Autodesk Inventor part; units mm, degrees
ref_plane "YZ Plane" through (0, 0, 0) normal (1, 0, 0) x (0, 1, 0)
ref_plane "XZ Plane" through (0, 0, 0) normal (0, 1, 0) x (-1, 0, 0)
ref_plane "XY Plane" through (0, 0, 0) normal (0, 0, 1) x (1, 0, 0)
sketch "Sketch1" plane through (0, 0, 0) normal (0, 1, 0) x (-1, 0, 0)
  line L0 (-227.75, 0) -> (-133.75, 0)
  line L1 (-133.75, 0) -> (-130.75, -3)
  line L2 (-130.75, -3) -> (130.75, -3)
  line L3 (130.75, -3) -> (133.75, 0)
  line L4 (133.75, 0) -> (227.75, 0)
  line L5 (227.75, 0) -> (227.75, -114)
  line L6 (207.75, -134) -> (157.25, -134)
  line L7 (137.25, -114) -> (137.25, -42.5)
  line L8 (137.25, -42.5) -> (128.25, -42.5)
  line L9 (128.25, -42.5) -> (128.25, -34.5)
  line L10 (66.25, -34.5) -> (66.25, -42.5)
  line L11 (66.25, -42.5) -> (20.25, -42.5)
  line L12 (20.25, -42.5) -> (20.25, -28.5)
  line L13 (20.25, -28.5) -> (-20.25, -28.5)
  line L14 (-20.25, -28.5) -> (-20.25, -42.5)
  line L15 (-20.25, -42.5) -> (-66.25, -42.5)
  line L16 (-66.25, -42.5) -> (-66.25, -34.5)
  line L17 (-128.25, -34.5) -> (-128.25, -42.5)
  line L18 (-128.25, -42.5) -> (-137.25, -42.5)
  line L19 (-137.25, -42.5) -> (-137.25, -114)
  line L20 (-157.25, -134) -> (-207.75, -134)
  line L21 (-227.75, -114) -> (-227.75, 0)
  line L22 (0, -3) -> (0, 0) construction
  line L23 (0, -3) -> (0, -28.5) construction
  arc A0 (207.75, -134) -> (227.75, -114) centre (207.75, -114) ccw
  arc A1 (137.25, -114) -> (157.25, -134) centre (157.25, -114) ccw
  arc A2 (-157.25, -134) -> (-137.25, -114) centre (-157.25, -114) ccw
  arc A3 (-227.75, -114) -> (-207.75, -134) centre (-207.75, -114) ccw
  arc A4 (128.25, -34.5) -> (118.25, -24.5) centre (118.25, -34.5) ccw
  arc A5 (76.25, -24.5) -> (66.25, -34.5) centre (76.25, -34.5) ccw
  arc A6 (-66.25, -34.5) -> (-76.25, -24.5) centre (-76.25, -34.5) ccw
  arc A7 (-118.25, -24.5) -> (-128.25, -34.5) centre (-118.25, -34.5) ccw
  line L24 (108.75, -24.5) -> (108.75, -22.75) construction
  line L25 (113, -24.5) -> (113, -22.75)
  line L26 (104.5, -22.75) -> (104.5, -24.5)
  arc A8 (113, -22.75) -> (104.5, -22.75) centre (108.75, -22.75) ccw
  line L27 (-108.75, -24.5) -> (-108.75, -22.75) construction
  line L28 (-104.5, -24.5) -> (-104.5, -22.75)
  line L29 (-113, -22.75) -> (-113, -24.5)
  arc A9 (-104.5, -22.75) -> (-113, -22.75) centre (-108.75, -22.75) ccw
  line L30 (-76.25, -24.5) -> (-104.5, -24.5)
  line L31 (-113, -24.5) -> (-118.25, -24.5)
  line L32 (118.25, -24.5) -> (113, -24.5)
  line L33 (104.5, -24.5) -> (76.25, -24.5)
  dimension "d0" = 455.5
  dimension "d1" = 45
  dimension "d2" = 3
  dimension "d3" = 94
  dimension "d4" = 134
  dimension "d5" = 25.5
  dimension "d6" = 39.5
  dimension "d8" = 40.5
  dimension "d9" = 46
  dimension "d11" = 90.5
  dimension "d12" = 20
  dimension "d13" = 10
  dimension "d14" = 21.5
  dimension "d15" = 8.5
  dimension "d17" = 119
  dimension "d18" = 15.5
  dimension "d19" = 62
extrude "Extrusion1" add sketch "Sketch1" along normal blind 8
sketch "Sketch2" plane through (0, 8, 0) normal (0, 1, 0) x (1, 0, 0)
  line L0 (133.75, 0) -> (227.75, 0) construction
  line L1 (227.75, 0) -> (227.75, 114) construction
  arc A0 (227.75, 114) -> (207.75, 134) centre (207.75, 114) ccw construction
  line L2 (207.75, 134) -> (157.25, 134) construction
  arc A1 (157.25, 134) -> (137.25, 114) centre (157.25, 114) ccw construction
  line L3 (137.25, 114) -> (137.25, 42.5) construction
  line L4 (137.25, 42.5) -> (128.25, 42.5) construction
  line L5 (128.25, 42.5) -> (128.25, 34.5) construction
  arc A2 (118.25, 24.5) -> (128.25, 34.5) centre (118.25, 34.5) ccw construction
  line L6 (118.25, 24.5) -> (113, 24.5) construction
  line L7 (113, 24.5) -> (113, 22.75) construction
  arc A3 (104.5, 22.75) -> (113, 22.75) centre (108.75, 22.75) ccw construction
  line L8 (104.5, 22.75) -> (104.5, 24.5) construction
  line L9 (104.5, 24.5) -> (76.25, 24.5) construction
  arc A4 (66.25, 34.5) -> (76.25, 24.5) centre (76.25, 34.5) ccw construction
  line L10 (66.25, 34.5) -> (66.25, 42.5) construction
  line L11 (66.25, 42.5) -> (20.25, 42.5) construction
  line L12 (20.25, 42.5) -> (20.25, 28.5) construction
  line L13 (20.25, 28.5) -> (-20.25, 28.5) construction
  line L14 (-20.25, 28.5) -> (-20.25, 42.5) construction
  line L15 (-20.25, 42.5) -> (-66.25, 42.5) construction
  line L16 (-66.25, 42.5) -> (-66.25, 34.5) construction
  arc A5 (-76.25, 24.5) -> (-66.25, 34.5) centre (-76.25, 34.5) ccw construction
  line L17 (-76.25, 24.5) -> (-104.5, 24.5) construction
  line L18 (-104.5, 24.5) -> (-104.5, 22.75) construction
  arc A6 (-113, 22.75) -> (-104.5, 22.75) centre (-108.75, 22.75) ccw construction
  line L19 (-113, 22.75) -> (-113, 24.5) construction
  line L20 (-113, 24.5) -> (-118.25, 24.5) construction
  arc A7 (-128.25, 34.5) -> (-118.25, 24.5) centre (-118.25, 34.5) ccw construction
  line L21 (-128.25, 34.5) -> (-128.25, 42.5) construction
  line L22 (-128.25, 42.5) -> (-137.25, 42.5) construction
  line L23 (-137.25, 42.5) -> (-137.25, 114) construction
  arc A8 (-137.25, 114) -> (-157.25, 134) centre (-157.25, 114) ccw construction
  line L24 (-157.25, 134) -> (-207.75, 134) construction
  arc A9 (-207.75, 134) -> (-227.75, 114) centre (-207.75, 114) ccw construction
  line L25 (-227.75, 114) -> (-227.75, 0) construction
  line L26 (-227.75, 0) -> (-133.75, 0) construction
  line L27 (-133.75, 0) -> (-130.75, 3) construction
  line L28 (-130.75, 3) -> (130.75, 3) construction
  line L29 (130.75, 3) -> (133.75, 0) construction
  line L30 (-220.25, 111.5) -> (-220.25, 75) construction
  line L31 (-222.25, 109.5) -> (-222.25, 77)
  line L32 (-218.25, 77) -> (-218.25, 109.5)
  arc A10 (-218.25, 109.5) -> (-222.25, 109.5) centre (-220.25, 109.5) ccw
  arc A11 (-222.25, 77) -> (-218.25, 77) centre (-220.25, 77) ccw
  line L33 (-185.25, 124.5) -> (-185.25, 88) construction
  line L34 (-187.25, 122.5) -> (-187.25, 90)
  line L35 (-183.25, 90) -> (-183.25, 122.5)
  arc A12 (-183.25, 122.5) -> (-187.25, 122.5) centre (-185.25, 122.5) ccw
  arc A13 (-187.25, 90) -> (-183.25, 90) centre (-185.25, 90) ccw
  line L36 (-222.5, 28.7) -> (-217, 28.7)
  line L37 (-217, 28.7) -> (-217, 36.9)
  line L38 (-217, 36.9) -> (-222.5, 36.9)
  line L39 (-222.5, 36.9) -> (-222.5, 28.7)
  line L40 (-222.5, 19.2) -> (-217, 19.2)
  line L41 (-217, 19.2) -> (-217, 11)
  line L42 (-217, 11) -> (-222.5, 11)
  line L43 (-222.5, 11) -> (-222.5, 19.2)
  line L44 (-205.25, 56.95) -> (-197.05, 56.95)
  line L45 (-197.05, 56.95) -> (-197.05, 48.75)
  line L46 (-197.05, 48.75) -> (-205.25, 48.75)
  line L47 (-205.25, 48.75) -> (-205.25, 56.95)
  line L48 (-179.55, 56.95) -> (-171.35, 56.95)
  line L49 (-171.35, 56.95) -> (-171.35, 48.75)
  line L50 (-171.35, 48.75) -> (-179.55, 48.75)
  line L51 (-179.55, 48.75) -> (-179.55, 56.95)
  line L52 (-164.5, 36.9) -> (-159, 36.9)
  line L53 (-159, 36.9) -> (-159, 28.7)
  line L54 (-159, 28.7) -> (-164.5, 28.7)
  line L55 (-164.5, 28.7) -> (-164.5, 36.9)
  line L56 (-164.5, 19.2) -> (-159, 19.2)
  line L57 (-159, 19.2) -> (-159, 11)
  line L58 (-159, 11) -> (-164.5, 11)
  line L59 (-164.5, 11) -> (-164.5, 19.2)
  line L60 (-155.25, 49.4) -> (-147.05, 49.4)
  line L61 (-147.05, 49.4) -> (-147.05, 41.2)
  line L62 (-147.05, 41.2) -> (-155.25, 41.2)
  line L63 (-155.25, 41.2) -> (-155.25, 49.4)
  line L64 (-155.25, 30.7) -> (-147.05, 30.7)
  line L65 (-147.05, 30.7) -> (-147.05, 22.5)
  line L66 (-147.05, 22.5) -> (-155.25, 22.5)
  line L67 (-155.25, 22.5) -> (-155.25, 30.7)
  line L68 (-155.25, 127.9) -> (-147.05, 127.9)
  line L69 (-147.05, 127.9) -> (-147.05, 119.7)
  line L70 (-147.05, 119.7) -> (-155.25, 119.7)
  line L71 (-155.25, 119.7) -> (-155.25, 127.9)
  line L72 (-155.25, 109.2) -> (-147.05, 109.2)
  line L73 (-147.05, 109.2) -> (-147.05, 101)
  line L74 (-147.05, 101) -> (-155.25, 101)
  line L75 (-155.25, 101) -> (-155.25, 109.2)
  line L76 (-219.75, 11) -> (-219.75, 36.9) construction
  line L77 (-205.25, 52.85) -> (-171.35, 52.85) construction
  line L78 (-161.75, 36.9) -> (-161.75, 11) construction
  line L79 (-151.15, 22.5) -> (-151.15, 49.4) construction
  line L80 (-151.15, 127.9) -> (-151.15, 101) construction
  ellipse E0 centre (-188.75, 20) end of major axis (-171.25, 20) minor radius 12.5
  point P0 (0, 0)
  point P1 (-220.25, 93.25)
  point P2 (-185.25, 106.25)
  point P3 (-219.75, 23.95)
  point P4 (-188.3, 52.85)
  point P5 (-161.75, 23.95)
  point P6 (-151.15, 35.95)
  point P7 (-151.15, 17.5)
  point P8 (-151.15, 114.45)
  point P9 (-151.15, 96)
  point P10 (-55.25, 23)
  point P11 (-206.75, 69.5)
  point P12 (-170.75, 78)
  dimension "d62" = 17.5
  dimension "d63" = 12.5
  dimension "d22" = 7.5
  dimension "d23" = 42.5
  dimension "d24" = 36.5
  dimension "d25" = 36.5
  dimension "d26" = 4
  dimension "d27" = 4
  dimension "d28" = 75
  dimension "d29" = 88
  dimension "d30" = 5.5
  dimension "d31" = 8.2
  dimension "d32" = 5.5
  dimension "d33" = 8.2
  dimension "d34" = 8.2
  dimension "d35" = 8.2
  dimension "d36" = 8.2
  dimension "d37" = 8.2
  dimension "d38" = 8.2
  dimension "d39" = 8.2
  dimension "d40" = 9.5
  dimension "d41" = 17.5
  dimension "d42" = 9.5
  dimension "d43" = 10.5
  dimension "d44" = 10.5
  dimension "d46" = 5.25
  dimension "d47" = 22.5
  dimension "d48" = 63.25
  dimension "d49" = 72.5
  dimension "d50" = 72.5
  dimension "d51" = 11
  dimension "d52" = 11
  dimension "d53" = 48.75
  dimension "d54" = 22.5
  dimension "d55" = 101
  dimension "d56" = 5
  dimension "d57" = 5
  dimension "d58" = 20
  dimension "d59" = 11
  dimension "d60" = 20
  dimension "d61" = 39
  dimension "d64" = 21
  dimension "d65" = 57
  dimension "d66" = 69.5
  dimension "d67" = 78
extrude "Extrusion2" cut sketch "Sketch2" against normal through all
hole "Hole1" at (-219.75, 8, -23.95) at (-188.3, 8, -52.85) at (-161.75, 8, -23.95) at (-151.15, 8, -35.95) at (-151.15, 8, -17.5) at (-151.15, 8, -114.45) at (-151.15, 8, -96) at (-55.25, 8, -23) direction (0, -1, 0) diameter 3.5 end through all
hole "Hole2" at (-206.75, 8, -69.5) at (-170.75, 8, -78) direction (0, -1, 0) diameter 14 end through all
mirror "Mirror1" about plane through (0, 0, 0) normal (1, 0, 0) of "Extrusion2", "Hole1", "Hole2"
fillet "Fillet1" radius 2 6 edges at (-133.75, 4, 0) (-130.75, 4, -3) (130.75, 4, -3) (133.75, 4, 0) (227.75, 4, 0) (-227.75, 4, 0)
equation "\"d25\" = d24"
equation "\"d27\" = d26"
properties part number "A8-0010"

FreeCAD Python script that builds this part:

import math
import FreeCAD as App
import Part
import Sketcher
from FreeCAD import Vector


def edges_at(feature, points):
    """Names of the edges that pass closest to the given points."""
    edges = feature.Shape.Edges
    near = lambda p: min(range(len(edges)), key=lambda i: edges[i].distToShape(Part.Vertex(*p))[0])
    return sorted({f"Edge{near(p) + 1}" for p in points})

doc = App.newDocument("Part")
body = doc.addObject("PartDesign::Body", "Body")

# Sketch on XZ plane
sketch1 = doc.addObject("Sketcher::SketchObject", "Sketch")
body.addObject(sketch1)
sketch1.AttachmentSupport = (doc.XZ_Plane, [""])
sketch1.MapMode = "FlatFace"
sketch1.addGeometry([
    Part.LineSegment(Vector(133.8, 0, 0), Vector(227.8, 0, 0)),  # 0
    Part.LineSegment(Vector(227.8, 0, 0), Vector(227.8, -114, 0)),  # 1
    Part.ArcOfCircle(Part.Circle(Vector(207.8, -114, 0), Vector(0, 0, 1), 20), math.radians(-90), math.radians(0)),  # 2
    Part.LineSegment(Vector(207.8, -134, 0), Vector(157.2, -134, 0)),  # 3
    Part.ArcOfCircle(Part.Circle(Vector(157.2, -114, 0), Vector(0, 0, 1), 20), math.radians(180), math.radians(270)),  # 4
    Part.LineSegment(Vector(137.2, -114, 0), Vector(137.2, -42.5, 0)),  # 5
    Part.LineSegment(Vector(137.2, -42.5, 0), Vector(128.2, -42.5, 0)),  # 6
    Part.LineSegment(Vector(128.2, -42.5, 0), Vector(128.2, -34.5, 0)),  # 7
    Part.ArcOfCircle(Part.Circle(Vector(118.2, -34.5, 0), Vector(0, 0, 1), 10), math.radians(0), math.radians(90)),  # 8
    Part.LineSegment(Vector(118.2, -24.5, 0), Vector(113, -24.5, 0)),  # 9
    Part.LineSegment(Vector(113, -24.5, 0), Vector(113, -22.8, 0)),  # 10
    Part.ArcOfCircle(Part.Circle(Vector(108.8, -22.8, 0), Vector(0, 0, 1), 4.2), math.radians(0), math.radians(180)),  # 11
    Part.LineSegment(Vector(104.5, -22.8, 0), Vector(104.5, -24.5, 0)),  # 12
    Part.LineSegment(Vector(104.5, -24.5, 0), Vector(76.2, -24.5, 0)),  # 13
    Part.ArcOfCircle(Part.Circle(Vector(76.2, -34.5, 0), Vector(0, 0, 1), 10), math.radians(90), math.radians(180)),  # 14
    Part.LineSegment(Vector(66.2, -34.5, 0), Vector(66.2, -42.5, 0)),  # 15
    Part.LineSegment(Vector(66.2, -42.5, 0), Vector(20.2, -42.5, 0)),  # 16
    Part.LineSegment(Vector(20.2, -42.5, 0), Vector(20.2, -28.5, 0)),  # 17
    Part.LineSegment(Vector(20.2, -28.5, 0), Vector(-20.2, -28.5, 0)),  # 18
    Part.LineSegment(Vector(-20.2, -28.5, 0), Vector(-20.2, -42.5, 0)),  # 19
    Part.LineSegment(Vector(-20.2, -42.5, 0), Vector(-66.2, -42.5, 0)),  # 20
    Part.LineSegment(Vector(-66.2, -42.5, 0), Vector(-66.2, -34.5, 0)),  # 21
    Part.ArcOfCircle(Part.Circle(Vector(-76.2, -34.5, 0), Vector(0, 0, 1), 10), math.radians(0), math.radians(90)),  # 22
    Part.LineSegment(Vector(-76.2, -24.5, 0), Vector(-104.5, -24.5, 0)),  # 23
    Part.LineSegment(Vector(-104.5, -24.5, 0), Vector(-104.5, -22.8, 0)),  # 24
    Part.ArcOfCircle(Part.Circle(Vector(-108.8, -22.8, 0), Vector(0, 0, 1), 4.2), math.radians(0), math.radians(180)),  # 25
    Part.LineSegment(Vector(-113, -22.8, 0), Vector(-113, -24.5, 0)),  # 26
    Part.LineSegment(Vector(-113, -24.5, 0), Vector(-118.2, -24.5, 0)),  # 27
    Part.ArcOfCircle(Part.Circle(Vector(-118.2, -34.5, 0), Vector(0, 0, 1), 10), math.radians(90), math.radians(180)),  # 28
    Part.LineSegment(Vector(-128.2, -34.5, 0), Vector(-128.2, -42.5, 0)),  # 29
    Part.LineSegment(Vector(-128.2, -42.5, 0), Vector(-137.2, -42.5, 0)),  # 30
    Part.LineSegment(Vector(-137.2, -42.5, 0), Vector(-137.2, -114, 0)),  # 31
    Part.ArcOfCircle(Part.Circle(Vector(-157.2, -114, 0), Vector(0, 0, 1), 20), math.radians(-90), math.radians(0)),  # 32
    Part.LineSegment(Vector(-157.2, -134, 0), Vector(-207.8, -134, 0)),  # 33
    Part.ArcOfCircle(Part.Circle(Vector(-207.8, -114, 0), Vector(0, 0, 1), 20), math.radians(180), math.radians(270)),  # 34
    Part.LineSegment(Vector(-227.8, -114, 0), Vector(-227.8, 0, 0)),  # 35
    Part.LineSegment(Vector(-227.8, 0, 0), Vector(-133.8, 0, 0)),  # 36
    Part.LineSegment(Vector(-133.8, 0, 0), Vector(-130.8, -3, 0)),  # 37
    Part.LineSegment(Vector(-130.8, -3, 0), Vector(130.8, -3, 0)),  # 38
    Part.LineSegment(Vector(130.8, -3, 0), Vector(133.8, 0, 0)),  # 39
], False)
sketch1.addConstraint([
    Sketcher.Constraint("Coincident", 0, 2, 1, 1),
    Sketcher.Constraint("Tangent", 1, 2, 2, 2),
    Sketcher.Constraint("Tangent", 2, 1, 3, 1),
    Sketcher.Constraint("Tangent", 3, 2, 4, 2),
    Sketcher.Constraint("Tangent", 4, 1, 5, 1),
    Sketcher.Constraint("Coincident", 5, 2, 6, 1),
    Sketcher.Constraint("Coincident", 6, 2, 7, 1),
    Sketcher.Constraint("Tangent", 7, 2, 8, 1),
    Sketcher.Constraint("Tangent", 8, 2, 9, 1),
    Sketcher.Constraint("Coincident", 9, 2, 10, 1),
    Sketcher.Constraint("Tangent", 10, 2, 11, 1),
    Sketcher.Constraint("Tangent", 11, 2, 12, 1),
    Sketcher.Constraint("Coincident", 12, 2, 13, 1),
    Sketcher.Constraint("Tangent", 13, 2, 14, 1),
    Sketcher.Constraint("Tangent", 14, 2, 15, 1),
    Sketcher.Constraint("Coincident", 15, 2, 16, 1),
    Sketcher.Constraint("Coincident", 16, 2, 17, 1),
    Sketcher.Constraint("Coincident", 17, 2, 18, 1),
    Sketcher.Constraint("Coincident", 18, 2, 19, 1),
    Sketcher.Constraint("Coincident", 19, 2, 20, 1),
    Sketcher.Constraint("Coincident", 20, 2, 21, 1),
    Sketcher.Constraint("Tangent", 21, 2, 22, 1),
    Sketcher.Constraint("Tangent", 22, 2, 23, 1),
    Sketcher.Constraint("Coincident", 23, 2, 24, 1),
    Sketcher.Constraint("Tangent", 24, 2, 25, 1),
    Sketcher.Constraint("Tangent", 25, 2, 26, 1),
    Sketcher.Constraint("Coincident", 26, 2, 27, 1),
    Sketcher.Constraint("Tangent", 27, 2, 28, 1),
    Sketcher.Constraint("Tangent", 28, 2, 29, 1),
    Sketcher.Constraint("Coincident", 29, 2, 30, 1),
    Sketcher.Constraint("Coincident", 30, 2, 31, 1),
    Sketcher.Constraint("Tangent", 31, 2, 32, 2),
    Sketcher.Constraint("Tangent", 32, 1, 33, 1),
    Sketcher.Constraint("Tangent", 33, 2, 34, 2),
    Sketcher.Constraint("Tangent", 34, 1, 35, 1),
    Sketcher.Constraint("Coincident", 35, 2, 36, 1),
    Sketcher.Constraint("Coincident", 36, 2, 37, 1),
    Sketcher.Constraint("Coincident", 37, 2, 38, 1),
    Sketcher.Constraint("Coincident", 38, 2, 39, 1),
    Sketcher.Constraint("Coincident", 39, 2, 0, 1),
    Sketcher.Constraint("Horizontal", 0),
    Sketcher.Constraint("Vertical", 1),
    Sketcher.Constraint("Horizontal", 3),
    Sketcher.Constraint("Vertical", 5),
    Sketcher.Constraint("Horizontal", 6),
    Sketcher.Constraint("Vertical", 7),
    Sketcher.Constraint("Horizontal", 9),
    Sketcher.Constraint("Vertical", 10),
    Sketcher.Constraint("Vertical", 12),
    Sketcher.Constraint("Horizontal", 13),
    Sketcher.Constraint("Vertical", 15),
    Sketcher.Constraint("Horizontal", 16),
    Sketcher.Constraint("Vertical", 17),
    Sketcher.Constraint("Horizontal", 18),
    Sketcher.Constraint("Vertical", 19),
    Sketcher.Constraint("Horizontal", 20),
    Sketcher.Constraint("Vertical", 21),
    Sketcher.Constraint("Horizontal", 23),
    Sketcher.Constraint("Vertical", 24),
    Sketcher.Constraint("Vertical", 26),
    Sketcher.Constraint("Horizontal", 27),
    Sketcher.Constraint("Vertical", 29),
    Sketcher.Constraint("Horizontal", 30),
    Sketcher.Constraint("Vertical", 31),
    Sketcher.Constraint("Horizontal", 33),
    Sketcher.Constraint("Vertical", 35),
    Sketcher.Constraint("Horizontal", 36),
    Sketcher.Constraint("Horizontal", 38),
    Sketcher.Constraint("Equal", 2, 4),
    Sketcher.Constraint("Equal", 8, 14),
    Sketcher.Constraint("Equal", 14, 22),
    Sketcher.Constraint("Equal", 11, 25),
    Sketcher.Constraint("Equal", 22, 28),
    Sketcher.Constraint("Equal", 4, 32),
    Sketcher.Constraint("Equal", 32, 34),
    Sketcher.Constraint("Symmetric", 0, 2, 35, 2, -1, 1),
    Sketcher.Constraint("Symmetric", 14, 3, 22, 3, -2),
    Sketcher.Constraint("Symmetric", 11, 3, 25, 3, -2),
    Sketcher.Constraint("Symmetric", 8, 3, 28, 3, -2),
    Sketcher.Constraint("Symmetric", 4, 3, 32, 3, -2),
    Sketcher.Constraint("Symmetric", 16, 2, 19, 2, -2),
    Sketcher.Constraint("Symmetric", 36, 2, 39, 2, -2),
    Sketcher.Constraint("Perpendicular", 37, 39),
    Sketcher.Constraint("Horizontal", 8, 3, 14, 3),
    Sketcher.Constraint("Horizontal", 6, 2, 15, 2),
    Sketcher.Constraint("Horizontal", 20, 2, 29, 2),
    Sketcher.Constraint("Equal", 37, 39),
    Sketcher.Constraint("Radius", 2, 20.0),
    Sketcher.Constraint("Radius", 8, 10.0),
    Sketcher.Constraint("DistanceX", 0, 1, 0, 2, 94.0),
    Sketcher.Constraint("DistanceX", 16, 2, 16, 1, 46.0),
    Sketcher.Constraint("Radius", 11, 4.25),
    Sketcher.Constraint("DistanceX", 18, 2, 18, 1, 40.5),
    Sketcher.Constraint("DistanceY", 2, 1, -1, 1, 134.0),
    Sketcher.Constraint("DistanceY", 37, 2, -1, 1, 3.0),
    Sketcher.Constraint("DistanceX", 11, 3, 0, 2, 119.0),
    Sketcher.Constraint("DistanceX", 34, 1, 31, 2, 90.5),
    Sketcher.Constraint("DistanceX", 36, 2, 27, 2, 15.5),
    Sketcher.Constraint("DistanceY", 27, 2, 37, 2, 21.5),
    Sketcher.Constraint("DistanceY", 7, 1, 7, 2, 8.0),
    Sketcher.Constraint("DistanceY", 17, 1, 17, 2, 14.0),
    Sketcher.Constraint("DistanceX", 38, 1, 38, 2, 261.5),
    Sketcher.Constraint("DistanceY", 10, 1, 10, 2, 1.75),
])
pad1 = doc.addObject("PartDesign::Pad", "Pad")
body.addObject(pad1)
pad1.Profile = sketch1
pad1.Length = 8
pad1.Reversed = True

# Sketch on XZ plane
sketch2 = doc.addObject("Sketcher::SketchObject", "Sketch001")
body.addObject(sketch2)
sketch2.AttachmentSupport = (doc.XZ_Plane, [""])
sketch2.MapMode = "FlatFace"
sketch2.AttachmentOffset = App.Placement(Vector(0, 0, -8), App.Rotation())
sketch2.addGeometry([
    Part.ArcOfCircle(Part.Circle(Vector(-220.25, -109.5, 0), Vector(0, 0, 1), 2), math.radians(180), math.radians(360)),  # 0
    Part.LineSegment(Vector(-222.25, -109.5, 0), Vector(-222.25, -77, 0)),  # 1
    Part.ArcOfCircle(Part.Circle(Vector(-220.25, -77, 0), Vector(0, 0, 1), 2), math.radians(0), math.radians(180)),  # 2
    Part.LineSegment(Vector(-218.25, -77, 0), Vector(-218.25, -109.5, 0)),  # 3
    Part.ArcOfCircle(Part.Circle(Vector(-185.25, -122.5, 0), Vector(0, 0, 1), 2), math.radians(180), math.radians(360)),  # 4
    Part.LineSegment(Vector(-187.25, -122.5, 0), Vector(-187.25, -90, 0)),  # 5
    Part.ArcOfCircle(Part.Circle(Vector(-185.25, -90, 0), Vector(0, 0, 1), 2), math.radians(0), math.radians(180)),  # 6
    Part.LineSegment(Vector(-183.25, -90, 0), Vector(-183.25, -122.5, 0)),  # 7
    Part.LineSegment(Vector(-222.5, -36.9, 0), Vector(-222.5, -28.7, 0)),  # 8
    Part.LineSegment(Vector(-222.5, -28.7, 0), Vector(-217, -28.7, 0)),  # 9
    Part.LineSegment(Vector(-217, -28.7, 0), Vector(-217, -36.9, 0)),  # 10
    Part.LineSegment(Vector(-217, -36.9, 0), Vector(-222.5, -36.9, 0)),  # 11
    Part.LineSegment(Vector(-217, -19.2, 0), Vector(-222.5, -19.2, 0)),  # 12
    Part.LineSegment(Vector(-222.5, -19.2, 0), Vector(-222.5, -11, 0)),  # 13
    Part.LineSegment(Vector(-222.5, -11, 0), Vector(-217, -11, 0)),  # 14
    Part.LineSegment(Vector(-217, -11, 0), Vector(-217, -19.2, 0)),  # 15
    Part.LineSegment(Vector(-197.05, -56.95, 0), Vector(-205.25, -56.95, 0)),  # 16
    Part.LineSegment(Vector(-205.25, -56.95, 0), Vector(-205.25, -48.75, 0)),  # 17
    Part.LineSegment(Vector(-205.25, -48.75, 0), Vector(-197.05, -48.75, 0)),  # 18
    Part.LineSegment(Vector(-197.05, -48.75, 0), Vector(-197.05, -56.95, 0)),  # 19
    Part.LineSegment(Vector(-171.35, -56.95, 0), Vector(-179.55, -56.95, 0)),  # 20
    Part.LineSegment(Vector(-179.55, -56.95, 0), Vector(-179.55, -48.75, 0)),  # 21
    Part.LineSegment(Vector(-179.55, -48.75, 0), Vector(-171.35, -48.75, 0)),  # 22
    Part.LineSegment(Vector(-171.35, -48.75, 0), Vector(-171.35, -56.95, 0)),  # 23
    Part.LineSegment(Vector(-159, -36.9, 0), Vector(-164.5, -36.9, 0)),  # 24
    Part.LineSegment(Vector(-164.5, -36.9, 0), Vector(-164.5, -28.7, 0)),  # 25
    Part.LineSegment(Vector(-164.5, -28.7, 0), Vector(-159, -28.7, 0)),  # 26
    Part.LineSegment(Vector(-159, -28.7, 0), Vector(-159, -36.9, 0)),  # 27
    Part.LineSegment(Vector(-159, -19.2, 0), Vector(-164.5, -19.2, 0)),  # 28
    Part.LineSegment(Vector(-164.5, -19.2, 0), Vector(-164.5, -11, 0)),  # 29
    Part.LineSegment(Vector(-164.5, -11, 0), Vector(-159, -11, 0)),  # 30
    Part.LineSegment(Vector(-159, -11, 0), Vector(-159, -19.2, 0)),  # 31
    Part.LineSegment(Vector(-147.05, -49.4, 0), Vector(-155.25, -49.4, 0)),  # 32
    Part.LineSegment(Vector(-155.25, -49.4, 0), Vector(-155.25, -41.2, 0)),  # 33
    Part.LineSegment(Vector(-155.25, -41.2, 0), Vector(-147.05, -41.2, 0)),  # 34
    Part.LineSegment(Vector(-147.05, -41.2, 0), Vector(-147.05, -49.4, 0)),  # 35
    Part.LineSegment(Vector(-147.05, -30.7, 0), Vector(-155.25, -30.7, 0)),  # 36
    Part.LineSegment(Vector(-155.25, -30.7, 0), Vector(-155.25, -22.5, 0)),  # 37
    Part.LineSegment(Vector(-155.25, -22.5, 0), Vector(-147.05, -22.5, 0)),  # 38
    Part.LineSegment(Vector(-147.05, -22.5, 0), Vector(-147.05, -30.7, 0)),  # 39
    Part.LineSegment(Vector(-147.05, -127.9, 0), Vector(-155.25, -127.9, 0)),  # 40
    Part.LineSegment(Vector(-155.25, -127.9, 0), Vector(-155.25, -119.7, 0)),  # 41
    Part.LineSegment(Vector(-155.25, -119.7, 0), Vector(-147.05, -119.7, 0)),  # 42
    Part.LineSegment(Vector(-147.05, -119.7, 0), Vector(-147.05, -127.9, 0)),  # 43
    Part.LineSegment(Vector(-147.05, -109.2, 0), Vector(-155.25, -109.2, 0)),  # 44
    Part.LineSegment(Vector(-155.25, -109.2, 0), Vector(-155.25, -101, 0)),  # 45
    Part.LineSegment(Vector(-155.25, -101, 0), Vector(-147.05, -101, 0)),  # 46
    Part.LineSegment(Vector(-147.05, -101, 0), Vector(-147.05, -109.2, 0)),  # 47
    Part.Ellipse(Vector(-171.25, -20, 0), Vector(-188.75, -7.5, 0), Vector(-188.75, -20, 0)),  # 48
], False)
sketch2.addConstraint([
    Sketcher.Constraint("Block", 48),
    Sketcher.Constraint("Tangent", 0, 1, 1, 1),
    Sketcher.Constraint("Tangent", 1, 2, 2, 2),
    Sketcher.Constraint("Tangent", 2, 1, 3, 1),
    Sketcher.Constraint("Tangent", 3, 2, 0, 2),
    Sketcher.Constraint("Tangent", 4, 1, 5, 1),
    Sketcher.Constraint("Tangent", 5, 2, 6, 2),
    Sketcher.Constraint("Tangent", 6, 1, 7, 1),
    Sketcher.Constraint("Tangent", 7, 2, 4, 2),
    Sketcher.Constraint("Coincident", 8, 2, 9, 1),
    Sketcher.Constraint("Coincident", 9, 2, 10, 1),
    Sketcher.Constraint("Coincident", 10, 2, 11, 1),
    Sketcher.Constraint("Coincident", 11, 2, 8, 1),
    Sketcher.Constraint("Coincident", 12, 2, 13, 1),
    Sketcher.Constraint("Coincident", 13, 2, 14, 1),
    Sketcher.Constraint("Coincident", 14, 2, 15, 1),
    Sketcher.Constraint("Coincident", 15, 2, 12, 1),
    Sketcher.Constraint("Coincident", 16, 2, 17, 1),
    Sketcher.Constraint("Coincident", 17, 2, 18, 1),
    Sketcher.Constraint("Coincident", 18, 2, 19, 1),
    Sketcher.Constraint("Coincident", 19, 2, 16, 1),
    Sketcher.Constraint("Coincident", 20, 2, 21, 1),
    Sketcher.Constraint("Coincident", 21, 2, 22, 1),
    Sketcher.Constraint("Coincident", 22, 2, 23, 1),
    Sketcher.Constraint("Coincident", 23, 2, 20, 1),
    Sketcher.Constraint("Coincident", 24, 2, 25, 1),
    Sketcher.Constraint("Coincident", 25, 2, 26, 1),
    Sketcher.Constraint("Coincident", 26, 2, 27, 1),
    Sketcher.Constraint("Coincident", 27, 2, 24, 1),
    Sketcher.Constraint("Coincident", 28, 2, 29, 1),
    Sketcher.Constraint("Coincident", 29, 2, 30, 1),
    Sketcher.Constraint("Coincident", 30, 2, 31, 1),
    Sketcher.Constraint("Coincident", 31, 2, 28, 1),
    Sketcher.Constraint("Coincident", 32, 2, 33, 1),
    Sketcher.Constraint("Coincident", 33, 2, 34, 1),
    Sketcher.Constraint("Coincident", 34, 2, 35, 1),
    Sketcher.Constraint("Coincident", 35, 2, 32, 1),
    Sketcher.Constraint("Coincident", 36, 2, 37, 1),
    Sketcher.Constraint("Coincident", 37, 2, 38, 1),
    Sketcher.Constraint("Coincident", 38, 2, 39, 1),
    Sketcher.Constraint("Coincident", 39, 2, 36, 1),
    Sketcher.Constraint("Coincident", 40, 2, 41, 1),
    Sketcher.Constraint("Coincident", 41, 2, 42, 1),
    Sketcher.Constraint("Coincident", 42, 2, 43, 1),
    Sketcher.Constraint("Coincident", 43, 2, 40, 1),
    Sketcher.Constraint("Coincident", 44, 2, 45, 1),
    Sketcher.Constraint("Coincident", 45, 2, 46, 1),
    Sketcher.Constraint("Coincident", 46, 2, 47, 1),
    Sketcher.Constraint("Coincident", 47, 2, 44, 1),
    Sketcher.Constraint("Vertical", 1),
    Sketcher.Constraint("Vertical", 3),
    Sketcher.Constraint("Vertical", 5),
    Sketcher.Constraint("Vertical", 7),
    Sketcher.Constraint("Vertical", 8),
    Sketcher.Constraint("Horizontal", 9),
    Sketcher.Constraint("Vertical", 10),
    Sketcher.Constraint("Horizontal", 11),
    Sketcher.Constraint("Horizontal", 12),
    Sketcher.Constraint("Vertical", 13),
    Sketcher.Constraint("Horizontal", 14),
    Sketcher.Constraint("Vertical", 15),
    Sketcher.Constraint("Horizontal", 16),
    Sketcher.Constraint("Vertical", 17),
    Sketcher.Constraint("Horizontal", 18),
    Sketcher.Constraint("Vertical", 19),
    Sketcher.Constraint("Horizontal", 20),
    Sketcher.Constraint("Vertical", 21),
    Sketcher.Constraint("Horizontal", 22),
    Sketcher.Constraint("Vertical", 23),
    Sketcher.Constraint("Horizontal", 24),
    Sketcher.Constraint("Vertical", 25),
    Sketcher.Constraint("Horizontal", 26),
    Sketcher.Constraint("Vertical", 27),
    Sketcher.Constraint("Horizontal", 28),
    Sketcher.Constraint("Vertical", 29),
    Sketcher.Constraint("Horizontal", 30),
    Sketcher.Constraint("Vertical", 31),
    Sketcher.Constraint("Horizontal", 32),
    Sketcher.Constraint("Vertical", 33),
    Sketcher.Constraint("Horizontal", 34),
    Sketcher.Constraint("Vertical", 35),
    Sketcher.Constraint("Horizontal", 36),
    Sketcher.Constraint("Vertical", 37),
    Sketcher.Constraint("Horizontal", 38),
    Sketcher.Constraint("Vertical", 39),
    Sketcher.Constraint("Horizontal", 40),
    Sketcher.Constraint("Vertical", 41),
    Sketcher.Constraint("Horizontal", 42),
    Sketcher.Constraint("Vertical", 43),
    Sketcher.Constraint("Horizontal", 44),
    Sketcher.Constraint("Vertical", 45),
    Sketcher.Constraint("Horizontal", 46),
    Sketcher.Constraint("Vertical", 47),
    Sketcher.Constraint("Equal", 2, 4),
    Sketcher.Constraint("Horizontal", 19, 2, 20, 2),
    Sketcher.Constraint("Horizontal", 18, 2, 21, 2),
    Sketcher.Constraint("Horizontal", 11, 2, 24, 2),
    Sketcher.Constraint("Horizontal", 9, 2, 25, 2),
    Sketcher.Constraint("Horizontal", 15, 2, 28, 2),
    Sketcher.Constraint("Horizontal", 14, 2, 29, 2),
    Sketcher.Constraint("Vertical", 11, 2, 12, 2),
    Sketcher.Constraint("Vertical", 10, 2, 14, 2),
    Sketcher.Constraint("Vertical", 25, 2, 28, 2),
    Sketcher.Constraint("Vertical", 27, 2, 30, 2),
    Sketcher.Constraint("Vertical", 33, 2, 36, 2),
    Sketcher.Constraint("Vertical", 35, 2, 38, 2),
    Sketcher.Constraint("Vertical", 37, 2, 40, 2),
    Sketcher.Constraint("Vertical", 39, 2, 42, 2),
    Sketcher.Constraint("Vertical", 41, 2, 44, 2),
    Sketcher.Constraint("Vertical", 43, 2, 46, 2),
    Sketcher.Constraint("Equal", 18, 20),
    Sketcher.Constraint("Equal", 14, 24),
    Sketcher.Constraint("Equal", 22, 32),
    Sketcher.Constraint("Equal", 3, 5),
    Sketcher.Constraint("Equal", 46, 8),
    Sketcher.Constraint("Equal", 10, 13),
    Sketcher.Constraint("Equal", 15, 17),
    Sketcher.Constraint("Equal", 31, 33),
    Sketcher.Constraint("Equal", 35, 37),
    Sketcher.Constraint("Equal", 39, 41),
    Sketcher.Constraint("Equal", 43, 45),
    Sketcher.Constraint("Radius", 0, 2.0),
    Sketcher.Constraint("DistanceX", 9, 1, 9, 2, 5.5),
    Sketcher.Constraint("DistanceX", 16, 2, 16, 1, 8.2),
    Sketcher.Constraint("DistanceY", 13, 2, -1, 1, 11.0),
    Sketcher.Constraint("DistanceY", 45, 2, -1, 1, 101.0),
    Sketcher.Constraint("DistanceY", 37, 2, -1, 1, 22.5),
    Sketcher.Constraint("DistanceY", 8, 2, 12, 2, 9.5),
    Sketcher.Constraint("DistanceX", 19, 2, 20, 2, 17.5),
    Sketcher.Constraint("DistanceY", 32, 2, 27, 2, 12.5),
    Sketcher.Constraint("DistanceY", 41, 2, 44, 2, 10.5),
    Sketcher.Constraint("DistanceY", 17, 2, -1, 1, 48.75),
    Sketcher.Constraint("DistanceX", 1, 2, 9, 2, 5.25),
    Sketcher.Constraint("DistanceY", 1, 1, 1, 2, 32.5),
    Sketcher.Constraint("DistanceY", 2, 3, -1, 1, 77.0),
    Sketcher.Constraint("DistanceY", 6, 3, -1, 1, 90.0),
    Sketcher.Constraint("DistanceX", 9, 2, -1, 1, 217.0),
    Sketcher.Constraint("DistanceX", 26, 2, -1, 1, 159.0),
    Sketcher.Constraint("DistanceX", 0, 3, 4, 3, 35.0),
    Sketcher.Constraint("DistanceX", 2, 1, 16, 2, 13.0),
    Sketcher.Constraint("DistanceX", 7, 2, 40, 2, 28.0),
])
pocket1 = doc.addObject("PartDesign::Pocket", "Pocket")
body.addObject(pocket1)
pocket1.Profile = sketch2
pocket1.Type = "ThroughAll"
pocket1.Reversed = True

# Sketch on XZ plane
sketch3 = doc.addObject("Sketcher::SketchObject", "Sketch002")
body.addObject(sketch3)
sketch3.AttachmentSupport = (doc.XZ_Plane, [""])
sketch3.MapMode = "FlatFace"
sketch3.AttachmentOffset = App.Placement(Vector(0, 0, -8), App.Rotation())
sketch3.addGeometry([
    Part.Circle(Vector(-219.8, -23.9, 0), Vector(0, 0, 1), 1.8),  # 0
    Part.Circle(Vector(-188.3, -52.9, 0), Vector(0, 0, 1), 1.8),  # 1
    Part.Circle(Vector(-161.8, -23.9, 0), Vector(0, 0, 1), 1.8),  # 2
    Part.Circle(Vector(-151.2, -36, 0), Vector(0, 0, 1), 1.8),  # 3
    Part.Circle(Vector(-151.2, -17.5, 0), Vector(0, 0, 1), 1.8),  # 4
    Part.Circle(Vector(-151.2, -114.5, 0), Vector(0, 0, 1), 1.8),  # 5
    Part.Circle(Vector(-151.2, -96, 0), Vector(0, 0, 1), 1.8),  # 6
    Part.Circle(Vector(-55.2, -23, 0), Vector(0, 0, 1), 1.8),  # 7
], False)
sketch3.addConstraint([
    Sketcher.Constraint("Equal", 0, 1),
    Sketcher.Constraint("Equal", 1, 2),
    Sketcher.Constraint("Equal", 2, 3),
    Sketcher.Constraint("Equal", 3, 4),
    Sketcher.Constraint("Equal", 4, 5),
    Sketcher.Constraint("Equal", 5, 6),
    Sketcher.Constraint("Equal", 6, 7),
    Sketcher.Constraint("Horizontal", 0, 3, 2, 3),
    Sketcher.Constraint("Vertical", 3, 3, 4, 3),
    Sketcher.Constraint("Vertical", 4, 3, 5, 3),
    Sketcher.Constraint("Vertical", 5, 3, 6, 3),
    Sketcher.Constraint("Diameter", 0, 3.5),
    Sketcher.Constraint("DistanceY", 6, 3, -1, 1, 96.0),
    Sketcher.Constraint("DistanceY", 7, 3, -1, 1, 23.0),
    Sketcher.Constraint("DistanceX", 0, 3, 2, 3, 58.0),
    Sketcher.Constraint("DistanceY", 3, 3, 2, 3, 12.0),
    Sketcher.Constraint("DistanceX", 1, 3, -1, 1, 188.3),
    Sketcher.Constraint("DistanceY", 4, 3, -1, 1, 17.5),
    Sketcher.Constraint("DistanceY", 1, 3, 0, 3, 28.9),
    Sketcher.Constraint("DistanceX", 2, 3, 3, 3, 10.6),
    Sketcher.Constraint("DistanceY", 5, 3, 1, 3, 61.6),
    Sketcher.Constraint("DistanceX", 4, 3, 7, 3, 95.9),
    Sketcher.Constraint("DistanceX", 0, 3, -1, 1, 219.75),
    Sketcher.Constraint("DistanceY", 0, 3, -1, 1, 23.95),
])
doc.recompute()
hole = doc.addObject("PartDesign::Hole", "Hole")
body.addObject(hole)
hole.Profile = sketch3
hole.ThreadType = "None"
hole.Diameter = 3.5
hole.DepthType = "ThroughAll"
hole.Reversed = True

# Sketch on XZ plane
sketch4 = doc.addObject("Sketcher::SketchObject", "Sketch003")
body.addObject(sketch4)
sketch4.AttachmentSupport = (doc.XZ_Plane, [""])
sketch4.MapMode = "FlatFace"
sketch4.AttachmentOffset = App.Placement(Vector(0, 0, -8), App.Rotation())
sketch4.addGeometry([
    Part.Circle(Vector(-207, -70, 0), Vector(0, 0, 1), 7),
    Part.Circle(Vector(-171, -78, 0), Vector(0, 0, 1), 7),
], False)
sketch4.addConstraint([
    Sketcher.Constraint("Equal", 0, 1),
    Sketcher.Constraint("Diameter", 0, 14.0),
    Sketcher.Constraint("DistanceY", 1, 3, -1, 1, 78.0),
    Sketcher.Constraint("DistanceX", 0, 3, 1, 3, 36.0),
    Sketcher.Constraint("DistanceY", 0, 3, -1, 1, 69.5),
    Sketcher.Constraint("DistanceX", 0, 3, -1, 1, 206.75),
])
doc.recompute()
hole2 = doc.addObject("PartDesign::Hole", "Hole001")
body.addObject(hole2)
hole2.Profile = sketch4
hole2.ThreadType = "None"
hole2.Diameter = 14
hole2.DepthType = "ThroughAll"
hole2.Reversed = True
doc.recompute()

mirrored = doc.addObject("PartDesign::Mirrored", "Mirrored")
body.addObject(mirrored)
mirrored.Originals = [pocket1, hole, hole2]
mirrored.MirrorPlane = (doc.YZ_Plane, [""])
body.Tip = mirrored
doc.recompute()

fillet = doc.addObject("PartDesign::Fillet", "Fillet")
body.addObject(fillet)
fillet.Base = (mirrored, edges_at(mirrored, [
    (-133.75, 4, 0),
    (-130.75, 4, -3),
    (130.75, 4, -3),
    (133.75, 4, 0),
    (227.75, 4, 0),
    (-227.75, 4, 0),
]))
fillet.Radius = 2

doc.recompute()
